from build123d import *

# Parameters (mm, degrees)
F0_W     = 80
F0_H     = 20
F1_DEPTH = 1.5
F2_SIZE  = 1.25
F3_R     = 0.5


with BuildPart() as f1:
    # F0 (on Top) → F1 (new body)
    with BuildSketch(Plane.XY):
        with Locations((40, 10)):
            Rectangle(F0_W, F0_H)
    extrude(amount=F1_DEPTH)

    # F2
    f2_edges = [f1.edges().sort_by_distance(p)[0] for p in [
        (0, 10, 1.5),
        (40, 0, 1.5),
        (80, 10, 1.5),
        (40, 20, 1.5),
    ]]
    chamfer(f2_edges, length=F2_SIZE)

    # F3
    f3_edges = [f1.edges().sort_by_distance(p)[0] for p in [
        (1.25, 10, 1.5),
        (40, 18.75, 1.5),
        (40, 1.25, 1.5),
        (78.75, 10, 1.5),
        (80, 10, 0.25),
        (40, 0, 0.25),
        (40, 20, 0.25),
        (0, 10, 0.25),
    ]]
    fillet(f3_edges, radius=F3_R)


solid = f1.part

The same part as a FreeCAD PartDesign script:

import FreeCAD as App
import Part
import Sketcher

V = App.Vector


def edges_at(feature, points):
    """Names of the edges that pass closest to the given points."""
    edges = feature.Shape.Edges
    near = lambda p: min(range(len(edges)), key=lambda i: edges[i].distToShape(Part.Vertex(*p))[0])
    return sorted({f"Edge{near(p) + 1}" for p in points})


def add_polygon(sketch, points):
    """Adds a closed chain of lines whose ends are joined by coincident constraints."""
    first, n = sketch.GeometryCount, len(points)
    for a, b in zip(points, points[1:] + points[:1]):
        sketch.addGeometry(Part.LineSegment(App.Vector(*a, 0), App.Vector(*b, 0)), False)
    for i in range(n):
        sketch.addConstraint(Sketcher.Constraint("Coincident", first + i, 2, first + (i + 1) % n, 1))

doc = App.newDocument("Part")
body = doc.addObject("PartDesign::Body", "Body")

sketch1 = body.newObject("Sketcher::SketchObject", "Sketch")
sketch1.AttachmentSupport = (doc.getObject("XY_Plane"), [""])
sketch1.MapMode = "FlatFace"
add_polygon(sketch1, [(0, 20), (0, 0), (80, 0), (80, 20)])
sketch1.addConstraint([
    Sketcher.Constraint("Vertical", 0),
    Sketcher.Constraint("Horizontal", 1),
    Sketcher.Constraint("Vertical", 2),
    Sketcher.Constraint("Horizontal", 3),
    Sketcher.Constraint("Coincident", 0, 2, -1, 1),
    Sketcher.Constraint("DistanceX", 1, 1, 1, 2, 80.0),
    Sketcher.Constraint("DistanceY", 0, 2, 0, 1, 20.0),
])
pad1 = body.newObject("PartDesign::Pad", "Pad")
pad1.Profile = sketch1
pad1.Length = 1.5
doc.recompute()

chamfer = body.newObject("PartDesign::Chamfer", "Chamfer")
chamfer.Base = (pad1, edges_at(pad1, [
    (0, 10, 1.5),
    (40, 0, 1.5),
    (80, 10, 1.5),
    (40, 20, 1.5),
]))
chamfer.Size = 1.25
doc.recompute()

fillet = body.newObject("PartDesign::Fillet", "Fillet")
fillet.Base = (chamfer, edges_at(chamfer, [
    (1.25, 10, 1.5),
    (40, 18.75, 1.5),
    (40, 1.25, 1.5),
    (78.75, 10, 1.5),
    (80, 10, 0.25),
    (40, 0, 0.25),
    (40, 20, 0.25),
    (0, 10, 0.25),
]))
fillet.Radius = 0.5

doc.recompute()
